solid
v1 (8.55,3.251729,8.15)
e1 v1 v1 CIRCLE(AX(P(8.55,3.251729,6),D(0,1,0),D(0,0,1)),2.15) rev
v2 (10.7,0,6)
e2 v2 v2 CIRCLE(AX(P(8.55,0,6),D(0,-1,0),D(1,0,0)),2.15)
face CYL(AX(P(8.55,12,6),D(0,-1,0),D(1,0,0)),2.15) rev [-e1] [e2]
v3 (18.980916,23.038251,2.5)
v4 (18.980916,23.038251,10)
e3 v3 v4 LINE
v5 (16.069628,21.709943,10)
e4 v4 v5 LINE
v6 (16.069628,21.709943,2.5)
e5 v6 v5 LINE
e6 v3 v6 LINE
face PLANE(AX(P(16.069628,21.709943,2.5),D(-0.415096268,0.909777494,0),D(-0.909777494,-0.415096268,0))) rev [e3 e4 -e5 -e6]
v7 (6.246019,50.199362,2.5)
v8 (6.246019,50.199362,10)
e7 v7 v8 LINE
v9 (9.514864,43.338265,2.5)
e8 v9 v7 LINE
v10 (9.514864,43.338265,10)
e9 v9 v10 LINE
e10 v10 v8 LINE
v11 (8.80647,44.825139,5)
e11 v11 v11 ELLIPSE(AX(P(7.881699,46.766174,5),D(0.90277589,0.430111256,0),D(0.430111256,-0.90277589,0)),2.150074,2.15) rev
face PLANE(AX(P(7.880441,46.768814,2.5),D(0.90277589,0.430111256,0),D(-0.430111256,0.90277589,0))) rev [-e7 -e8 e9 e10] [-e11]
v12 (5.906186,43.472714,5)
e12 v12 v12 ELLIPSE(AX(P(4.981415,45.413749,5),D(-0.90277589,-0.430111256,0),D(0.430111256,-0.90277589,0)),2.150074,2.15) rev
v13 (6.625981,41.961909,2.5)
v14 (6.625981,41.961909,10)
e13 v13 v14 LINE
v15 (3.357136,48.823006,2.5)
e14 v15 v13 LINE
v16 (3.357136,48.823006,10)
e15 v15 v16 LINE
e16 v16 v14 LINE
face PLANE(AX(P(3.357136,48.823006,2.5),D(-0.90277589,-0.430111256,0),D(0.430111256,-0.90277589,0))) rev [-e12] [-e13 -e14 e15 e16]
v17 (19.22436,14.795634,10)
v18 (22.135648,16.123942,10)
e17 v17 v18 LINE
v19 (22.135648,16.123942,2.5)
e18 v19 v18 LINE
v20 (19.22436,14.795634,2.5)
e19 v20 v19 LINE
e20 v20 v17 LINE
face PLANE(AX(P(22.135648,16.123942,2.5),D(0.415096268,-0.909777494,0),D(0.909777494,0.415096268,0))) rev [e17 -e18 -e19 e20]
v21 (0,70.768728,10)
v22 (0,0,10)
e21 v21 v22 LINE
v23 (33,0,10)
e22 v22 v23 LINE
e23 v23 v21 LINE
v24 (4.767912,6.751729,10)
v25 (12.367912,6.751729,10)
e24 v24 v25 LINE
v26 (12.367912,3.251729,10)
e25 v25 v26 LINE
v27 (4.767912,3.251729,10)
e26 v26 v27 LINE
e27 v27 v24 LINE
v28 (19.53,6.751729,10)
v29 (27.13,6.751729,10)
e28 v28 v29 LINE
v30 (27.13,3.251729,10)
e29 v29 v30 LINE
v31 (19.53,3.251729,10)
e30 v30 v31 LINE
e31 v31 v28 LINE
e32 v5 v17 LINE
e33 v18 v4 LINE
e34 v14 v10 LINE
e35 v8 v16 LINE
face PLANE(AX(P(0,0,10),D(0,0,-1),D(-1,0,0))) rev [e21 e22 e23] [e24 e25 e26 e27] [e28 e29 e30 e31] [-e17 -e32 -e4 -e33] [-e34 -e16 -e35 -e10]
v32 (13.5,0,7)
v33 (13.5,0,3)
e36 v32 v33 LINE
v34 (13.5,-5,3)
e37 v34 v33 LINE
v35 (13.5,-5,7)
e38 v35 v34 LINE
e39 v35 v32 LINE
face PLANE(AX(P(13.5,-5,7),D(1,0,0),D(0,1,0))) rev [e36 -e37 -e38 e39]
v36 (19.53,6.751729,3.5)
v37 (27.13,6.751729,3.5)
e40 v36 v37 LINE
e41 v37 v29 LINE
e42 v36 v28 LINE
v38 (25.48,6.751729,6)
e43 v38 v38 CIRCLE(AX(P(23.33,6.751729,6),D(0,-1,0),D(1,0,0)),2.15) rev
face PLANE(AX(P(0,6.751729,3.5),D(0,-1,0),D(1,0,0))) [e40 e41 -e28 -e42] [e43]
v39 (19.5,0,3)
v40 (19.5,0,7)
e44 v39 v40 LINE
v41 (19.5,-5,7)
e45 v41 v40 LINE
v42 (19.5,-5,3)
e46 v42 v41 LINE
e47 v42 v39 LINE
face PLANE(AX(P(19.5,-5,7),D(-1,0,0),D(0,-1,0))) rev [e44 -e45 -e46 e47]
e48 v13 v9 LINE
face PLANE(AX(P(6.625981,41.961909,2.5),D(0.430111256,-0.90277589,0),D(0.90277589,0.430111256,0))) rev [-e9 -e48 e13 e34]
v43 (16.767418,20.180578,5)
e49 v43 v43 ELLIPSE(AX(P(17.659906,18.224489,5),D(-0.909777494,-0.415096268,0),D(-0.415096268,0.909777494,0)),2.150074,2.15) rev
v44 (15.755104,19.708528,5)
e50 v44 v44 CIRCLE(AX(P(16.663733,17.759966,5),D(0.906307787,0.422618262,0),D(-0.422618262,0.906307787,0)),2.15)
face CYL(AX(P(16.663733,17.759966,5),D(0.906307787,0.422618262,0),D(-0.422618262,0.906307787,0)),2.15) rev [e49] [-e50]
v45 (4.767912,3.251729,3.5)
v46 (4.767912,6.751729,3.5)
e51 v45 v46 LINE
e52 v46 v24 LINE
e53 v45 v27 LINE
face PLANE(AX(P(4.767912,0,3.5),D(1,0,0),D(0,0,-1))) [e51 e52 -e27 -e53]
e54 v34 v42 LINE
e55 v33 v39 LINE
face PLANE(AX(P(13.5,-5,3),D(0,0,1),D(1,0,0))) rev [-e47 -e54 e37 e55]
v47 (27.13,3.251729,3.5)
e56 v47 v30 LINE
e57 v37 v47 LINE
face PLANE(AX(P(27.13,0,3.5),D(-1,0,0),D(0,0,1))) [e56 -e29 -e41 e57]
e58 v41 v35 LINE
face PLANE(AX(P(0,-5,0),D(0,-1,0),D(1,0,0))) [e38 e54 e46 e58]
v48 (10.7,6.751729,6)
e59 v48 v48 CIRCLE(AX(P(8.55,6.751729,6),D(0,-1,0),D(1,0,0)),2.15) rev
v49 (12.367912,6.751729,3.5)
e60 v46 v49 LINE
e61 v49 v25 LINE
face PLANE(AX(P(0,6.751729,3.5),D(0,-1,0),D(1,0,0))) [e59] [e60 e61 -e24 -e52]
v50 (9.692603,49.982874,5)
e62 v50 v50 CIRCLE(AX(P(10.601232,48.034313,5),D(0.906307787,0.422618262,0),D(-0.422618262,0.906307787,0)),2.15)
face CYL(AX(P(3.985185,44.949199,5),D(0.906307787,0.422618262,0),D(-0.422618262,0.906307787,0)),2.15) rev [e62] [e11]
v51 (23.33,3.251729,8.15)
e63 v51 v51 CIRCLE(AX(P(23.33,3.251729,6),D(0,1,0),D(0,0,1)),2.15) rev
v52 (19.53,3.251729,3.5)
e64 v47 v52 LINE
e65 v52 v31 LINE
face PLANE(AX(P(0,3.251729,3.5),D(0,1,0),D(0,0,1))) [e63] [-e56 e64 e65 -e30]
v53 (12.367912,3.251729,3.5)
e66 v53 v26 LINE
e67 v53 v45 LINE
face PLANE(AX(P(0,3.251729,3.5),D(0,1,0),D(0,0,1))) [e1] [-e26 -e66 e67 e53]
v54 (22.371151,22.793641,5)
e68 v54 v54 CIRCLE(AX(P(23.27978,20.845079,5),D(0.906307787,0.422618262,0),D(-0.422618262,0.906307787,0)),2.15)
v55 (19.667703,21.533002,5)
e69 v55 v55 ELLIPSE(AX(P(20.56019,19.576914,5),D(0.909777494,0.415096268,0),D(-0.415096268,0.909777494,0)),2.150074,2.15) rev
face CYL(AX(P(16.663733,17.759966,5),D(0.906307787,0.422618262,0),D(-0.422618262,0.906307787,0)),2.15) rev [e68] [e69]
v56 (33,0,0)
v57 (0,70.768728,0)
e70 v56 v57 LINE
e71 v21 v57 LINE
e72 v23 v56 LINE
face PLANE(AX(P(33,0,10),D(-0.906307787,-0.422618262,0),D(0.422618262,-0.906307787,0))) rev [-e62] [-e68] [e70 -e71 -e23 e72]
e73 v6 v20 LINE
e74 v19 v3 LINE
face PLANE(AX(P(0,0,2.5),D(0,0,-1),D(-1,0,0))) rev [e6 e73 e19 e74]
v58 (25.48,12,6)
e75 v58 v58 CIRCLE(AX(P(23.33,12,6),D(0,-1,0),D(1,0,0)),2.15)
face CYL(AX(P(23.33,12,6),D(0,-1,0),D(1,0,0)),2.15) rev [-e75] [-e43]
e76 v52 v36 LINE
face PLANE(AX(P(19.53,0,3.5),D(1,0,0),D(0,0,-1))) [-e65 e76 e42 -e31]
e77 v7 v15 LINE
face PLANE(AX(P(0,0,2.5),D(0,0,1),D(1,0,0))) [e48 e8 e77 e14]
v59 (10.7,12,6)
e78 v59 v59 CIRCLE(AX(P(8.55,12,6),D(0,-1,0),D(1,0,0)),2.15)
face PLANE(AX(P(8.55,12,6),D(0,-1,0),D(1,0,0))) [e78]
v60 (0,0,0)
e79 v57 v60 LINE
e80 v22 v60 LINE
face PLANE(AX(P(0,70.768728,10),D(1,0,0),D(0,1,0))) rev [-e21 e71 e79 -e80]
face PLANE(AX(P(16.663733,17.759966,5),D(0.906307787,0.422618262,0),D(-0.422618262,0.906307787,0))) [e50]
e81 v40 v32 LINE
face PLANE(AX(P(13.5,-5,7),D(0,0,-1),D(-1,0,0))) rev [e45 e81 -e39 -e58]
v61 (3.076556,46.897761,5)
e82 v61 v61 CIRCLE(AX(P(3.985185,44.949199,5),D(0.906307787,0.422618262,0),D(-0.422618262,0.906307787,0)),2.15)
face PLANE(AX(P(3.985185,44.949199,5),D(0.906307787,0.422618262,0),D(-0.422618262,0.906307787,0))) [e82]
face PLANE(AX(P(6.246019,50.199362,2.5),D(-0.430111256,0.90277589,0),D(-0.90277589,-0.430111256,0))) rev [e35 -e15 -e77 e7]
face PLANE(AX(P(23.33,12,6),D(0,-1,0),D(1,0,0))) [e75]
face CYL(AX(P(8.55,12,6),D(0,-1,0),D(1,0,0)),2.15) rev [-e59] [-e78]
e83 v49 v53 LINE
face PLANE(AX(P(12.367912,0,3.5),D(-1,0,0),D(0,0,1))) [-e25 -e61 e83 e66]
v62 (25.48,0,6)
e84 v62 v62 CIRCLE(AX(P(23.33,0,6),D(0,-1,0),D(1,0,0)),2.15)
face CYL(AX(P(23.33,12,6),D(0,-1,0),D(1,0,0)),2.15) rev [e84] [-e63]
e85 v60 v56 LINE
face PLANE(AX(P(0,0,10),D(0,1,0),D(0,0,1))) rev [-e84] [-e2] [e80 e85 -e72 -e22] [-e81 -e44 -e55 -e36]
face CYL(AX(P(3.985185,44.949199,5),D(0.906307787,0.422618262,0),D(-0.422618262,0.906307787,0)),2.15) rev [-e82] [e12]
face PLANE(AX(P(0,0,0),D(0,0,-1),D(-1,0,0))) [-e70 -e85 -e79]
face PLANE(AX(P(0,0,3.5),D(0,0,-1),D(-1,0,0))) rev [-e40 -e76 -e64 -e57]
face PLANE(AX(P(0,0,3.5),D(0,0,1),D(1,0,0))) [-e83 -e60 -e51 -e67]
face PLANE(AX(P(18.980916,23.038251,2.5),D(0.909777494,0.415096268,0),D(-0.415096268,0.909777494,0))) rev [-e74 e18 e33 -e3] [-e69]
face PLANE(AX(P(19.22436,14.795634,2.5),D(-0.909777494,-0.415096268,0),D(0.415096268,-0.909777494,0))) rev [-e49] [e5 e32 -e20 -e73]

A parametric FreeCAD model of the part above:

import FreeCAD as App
import Part
import Sketcher

V = App.Vector
Q = App.Units.Quantity

doc = App.newDocument("Part")
body = doc.addObject("PartDesign::Body", "Body")

# Sketch on XY plane
sketch1 = body.newObject("Sketcher::SketchObject", "Sketch")
sketch1.AttachmentSupport = (doc.getObject("XY_Plane"), [""])
sketch1.MapMode = "FlatFace"
sketch1.addGeometry([
    Part.LineSegment(V(0, 70.768728, 0), V(0, 0, 0)),
    Part.LineSegment(V(0, 0, 0), V(33, 0, 0)),
    Part.LineSegment(V(33, 0, 0), V(0, 70.768728, 0)),
], False)
sketch1.addConstraint([
    Sketcher.Constraint("Coincident", 0, 2, 1, 1),
    Sketcher.Constraint("Coincident", 1, 2, 2, 1),
    Sketcher.Constraint("Coincident", 2, 2, 0, 1),
    Sketcher.Constraint("Vertical", 0),
    Sketcher.Constraint("Horizontal", 1),
    Sketcher.Constraint("Coincident", 0, 2, -1, 1),
    Sketcher.Constraint("DistanceX", 1, 1, 1, 2, 33.0),
    Sketcher.Constraint("Angle", 2, Q("115 deg")),
])
pad1 = body.newObject("PartDesign::Pad", "Pad")
pad1.Profile = sketch1
pad1.Length = 10

# Sketch on XZ plane
sketch2 = body.newObject("Sketcher::SketchObject", "Sketch001")
sketch2.AttachmentSupport = (doc.getObject("XZ_Plane"), [""])
sketch2.MapMode = "FlatFace"
sketch2.addGeometry([
    Part.LineSegment(V(19.5, 3, 0), V(19.5, 7, 0)),
    Part.LineSegment(V(19.5, 7, 0), V(13.5, 7, 0)),
    Part.LineSegment(V(13.5, 7, 0), V(13.5, 3, 0)),
    Part.LineSegment(V(13.5, 3, 0), V(19.5, 3, 0)),
], False)
sketch2.addConstraint([
    Sketcher.Constraint("Coincident", 0, 2, 1, 1),
    Sketcher.Constraint("Coincident", 1, 2, 2, 1),
    Sketcher.Constraint("Coincident", 2, 2, 3, 1),
    Sketcher.Constraint("Coincident", 3, 2, 0, 1),
    Sketcher.Constraint("Vertical", 0),
    Sketcher.Constraint("Horizontal", 1),
    Sketcher.Constraint("Vertical", 2),
    Sketcher.Constraint("Horizontal", 3),
    Sketcher.Constraint("DistanceX", 1, 2, 1, 1, 6.0),
    Sketcher.Constraint("DistanceY", 0, 1, 0, 2, 4.0),
    Sketcher.Constraint("DistanceY", -1, 1, 0, 2, 7.0),
    Sketcher.Constraint("DistanceX", -1, 1, 0, 2, 19.5),
])
pad2 = body.newObject("PartDesign::Pad", "Pad001")
pad2.Profile = sketch2
pad2.Length = 5

# Sketch on XZ plane
sketch3 = body.newObject("Sketcher::SketchObject", "Sketch002")
sketch3.AttachmentSupport = (doc.getObject("XZ_Plane"), [""])
sketch3.MapMode = "FlatFace"
sketch3.addGeometry([
    Part.Circle(V(23.33, 6, 0), V(0, 0, 1), 2.15),
    Part.Circle(V(8.55, 6, 0), V(0, 0, 1), 2.15),
], False)
sketch3.addConstraint([
    Sketcher.Constraint("Equal", 0, 1),
    Sketcher.Constraint("Horizontal", 0, 3, 1, 3),
    Sketcher.Constraint("Diameter", 0, 4.3),
    Sketcher.Constraint("DistanceY", -1, 1, 0, 3, 6.0),
    Sketcher.Constraint("DistanceX", -1, 1, 0, 3, 23.33),
    Sketcher.Constraint("DistanceX", -1, 1, 1, 3, 8.55),
])
pocket1 = body.newObject("PartDesign::Pocket", "Pocket")
pocket1.Profile = sketch3
pocket1.Length = 12

# Sketch on an angled plane
sketch4 = body.newObject("Sketcher::SketchObject", "Sketch003")
sketch4.Placement = App.Placement(V(27.105996, 12.639733, 0), App.Rotation(V(0, 0, -1), V(-0.422618262, 0.906307787, 0), V(0.906307787, 0.422618262, 0), "ZXY"))
sketch4.addGeometry([
    Part.Circle(V(-5, 9.053597, 0), V(0, 0, 1), 2.15),
    Part.Circle(V(-5, 39.053597, 0), V(0, 0, 1), 2.15),
], False)
sketch4.addConstraint([
    Sketcher.Constraint("Equal", 0, 1),
    Sketcher.Constraint("Vertical", 0, 3, 1, 3),
    Sketcher.Constraint("Diameter", 0, 4.3),
    Sketcher.Constraint("DistanceX", 0, 3, -1, 1, 5.0),
    Sketcher.Constraint("DistanceY", 0, 3, 1, 3, 30.0),
    Sketcher.Constraint("DistanceY", -1, 1, 0, 3, 9.053597),
])
pocket2 = body.newObject("PartDesign::Pocket", "Pocket001")
pocket2.Profile = sketch4
pocket2.Length = 7.3

# Sketch on XY plane
sketch5 = body.newObject("Sketcher::SketchObject", "Sketch004")
sketch5.AttachmentSupport = (doc.getObject("XY_Plane"), [""])
sketch5.MapMode = "FlatFace"
sketch5.AttachmentOffset = App.Placement(V(0, 0, 10), App.Rotation())
sketch5.addGeometry([
    Part.LineSegment(V(27.13, 6.751729, 0), V(27.13, 3.251729, 0)),
    Part.LineSegment(V(27.13, 3.251729, 0), V(19.53, 3.251729, 0)),
    Part.LineSegment(V(19.53, 3.251729, 0), V(19.53, 6.751729, 0)),
    Part.LineSegment(V(19.53, 6.751729, 0), V(27.13, 6.751729, 0)),
], False)
sketch5.addConstraint([
    Sketcher.Constraint("Coincident", 0, 2, 1, 1),
    Sketcher.Constraint("Coincident", 1, 2, 2, 1),
    Sketcher.Constraint("Coincident", 2, 2, 3, 1),
    Sketcher.Constraint("Coincident", 3, 2, 0, 1),
    Sketcher.Constraint("Vertical", 0),
    Sketcher.Constraint("Horizontal", 1),
    Sketcher.Constraint("Vertical", 2),
    Sketcher.Constraint("Horizontal", 3),
    Sketcher.Constraint("DistanceX", 1, 2, 1, 1, 7.6),
    Sketcher.Constraint("DistanceY", 0, 2, 0, 1, 3.5),
    Sketcher.Constraint("DistanceX", -1, 1, 0, 2, 27.13),
    Sketcher.Constraint("DistanceY", -1, 1, 0, 2, 3.251729),
])
pocket3 = body.newObject("PartDesign::Pocket", "Pocket002")
pocket3.Profile = sketch5
pocket3.Length = 6.5

# Sketch on XY plane
sketch6 = body.newObject("Sketcher::SketchObject", "Sketch005")
sketch6.AttachmentSupport = (doc.getObject("XY_Plane"), [""])
sketch6.MapMode = "FlatFace"
sketch6.AttachmentOffset = App.Placement(V(0, 0, 10), App.Rotation())
sketch6.addGeometry([
    Part.LineSegment(V(4.767912, 6.751729, 0), V(4.767912, 3.251729, 0)),
    Part.LineSegment(V(4.767912, 3.251729, 0), V(12.367912, 3.251729, 0)),
    Part.LineSegment(V(12.367912, 3.251729, 0), V(12.367912, 6.751729, 0)),
    Part.LineSegment(V(12.367912, 6.751729, 0), V(4.767912, 6.751729, 0)),
], False)
sketch6.addConstraint([
    Sketcher.Constraint("Coincident", 0, 2, 1, 1),
    Sketcher.Constraint("Coincident", 1, 2, 2, 1),
    Sketcher.Constraint("Coincident", 2, 2, 3, 1),
    Sketcher.Constraint("Coincident", 3, 2, 0, 1),
    Sketcher.Constraint("Vertical", 0),
    Sketcher.Constraint("Horizontal", 1),
    Sketcher.Constraint("Vertical", 2),
    Sketcher.Constraint("Horizontal", 3),
    Sketcher.Constraint("DistanceX", 1, 1, 1, 2, 7.6),
    Sketcher.Constraint("DistanceY", 0, 2, 0, 1, 3.5),
    Sketcher.Constraint("DistanceX", -1, 1, 0, 2, 4.767912),
    Sketcher.Constraint("DistanceY", -1, 1, 0, 2, 3.251729),
])
pocket4 = body.newObject("PartDesign::Pocket", "Pocket003")
pocket4.Profile = sketch6
pocket4.Length = 6.5

# Sketch on XY plane
sketch7 = body.newObject("Sketcher::SketchObject", "Sketch006")
sketch7.AttachmentSupport = (doc.getObject("XY_Plane"), [""])
sketch7.MapMode = "FlatFace"
sketch7.AttachmentOffset = App.Placement(V(0, 0, 10), App.Rotation())
sketch7.addGeometry([
    Part.LineSegment(V(7.880441, 46.768814, 0), V(6.246019, 50.199362, 0)),  # 0
    Part.LineSegment(V(6.246019, 50.199362, 0), V(3.357136, 48.823006, 0)),  # 1
    Part.LineSegment(V(3.357136, 48.823006, 0), V(6.625981, 41.961909, 0)),  # 2
    Part.LineSegment(V(6.625981, 41.961909, 0), V(9.514864, 43.338265, 0)),  # 3
    Part.LineSegment(V(9.514864, 43.338265, 0), V(7.880441, 46.768814, 0)),  # 4
    Part.LineSegment(V(20.558282, 19.581096, 0), V(18.980916, 23.038251, 0)),  # 5
    Part.LineSegment(V(18.980916, 23.038251, 0), V(16.069628, 21.709943, 0)),  # 6
    Part.LineSegment(V(16.069628, 21.709943, 0), V(19.22436, 14.795634, 0)),  # 7
    Part.LineSegment(V(19.22436, 14.795634, 0), V(22.135648, 16.123942, 0)),  # 8
    Part.LineSegment(V(22.135648, 16.123942, 0), V(20.558282, 19.581096, 0)),  # 9
], False)
sketch7.addConstraint([
    Sketcher.Constraint("Coincident", 0, 2, 1, 1),
    Sketcher.Constraint("Coincident", 1, 2, 2, 1),
    Sketcher.Constraint("Coincident", 2, 2, 3, 1),
    Sketcher.Constraint("Coincident", 3, 2, 4, 1),
    Sketcher.Constraint("Coincident", 4, 2, 0, 1),
    Sketcher.Constraint("Coincident", 5, 2, 6, 1),
    Sketcher.Constraint("Coincident", 6, 2, 7, 1),
    Sketcher.Constraint("Coincident", 7, 2, 8, 1),
    Sketcher.Constraint("Coincident", 8, 2, 9, 1),
    Sketcher.Constraint("Coincident", 9, 2, 5, 1),
    Sketcher.Constraint("Perpendicular", 0, 1),
    Sketcher.Constraint("Perpendicular", 1, 2),
    Sketcher.Constraint("Perpendicular", 2, 3),
    Sketcher.Constraint("Perpendicular", 3, 4),
    Sketcher.Constraint("Perpendicular", 5, 6),
    Sketcher.Constraint("Perpendicular", 6, 7),
    Sketcher.Constraint("Perpendicular", 7, 8),
    Sketcher.Constraint("Perpendicular", 8, 9),
    Sketcher.Constraint("Equal", 0, 4),
    Sketcher.Constraint("Equal", 4, 5),
    Sketcher.Constraint("Equal", 3, 6),
    Sketcher.Constraint("Equal", 2, 7),
    Sketcher.Constraint("Distance", 0, 3.8),
    Sketcher.Constraint("Distance", 1, 3.2),
    Sketcher.Constraint("DistanceY", 8, 2, 6, 2, 5.586001),
    Sketcher.Constraint("DistanceX", -1, 1, 0, 2, 6.246019),
    Sketcher.Constraint("DistanceY", -1, 1, 0, 2, 50.199362),
    Sketcher.Constraint("DistanceX", -1, 1, 2, 2, 6.625981),
    Sketcher.Constraint("DistanceY", -1, 1, 5, 2, 23.038251),
    Sketcher.Constraint("DistanceX", -1, 1, 6, 2, 16.069628),
])
pocket5 = body.newObject("PartDesign::Pocket", "Pocket004")
pocket5.Profile = sketch7
pocket5.Length = 7.5

doc.recompute()
